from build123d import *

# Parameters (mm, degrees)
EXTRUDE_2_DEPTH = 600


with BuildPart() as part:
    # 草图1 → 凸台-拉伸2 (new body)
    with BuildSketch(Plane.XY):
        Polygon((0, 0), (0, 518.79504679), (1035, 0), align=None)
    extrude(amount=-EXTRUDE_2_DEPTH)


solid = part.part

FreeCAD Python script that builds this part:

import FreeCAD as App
import Part
import Sketcher


def add_polygon(sketch, points):
    """Adds a closed chain of lines whose ends are joined by coincident constraints."""
    first, n = sketch.GeometryCount, len(points)
    for a, b in zip(points, points[1:] + points[:1]):
        sketch.addGeometry(Part.LineSegment(App.Vector(*a, 0), App.Vector(*b, 0)), False)
    for i in range(n):
        sketch.addConstraint(Sketcher.Constraint("Coincident", first + i, 2, first + (i + 1) % n, 1))

doc = App.newDocument("Part")
params = doc.addObject("Spreadsheet::Sheet", "Params")
for row, (alias, value) in enumerate([
    ("sketch1_width", "1035 mm"),
    ("pad1_length", "600 mm"),
], start=1):
    params.set(f"A{row}", alias)
    params.set(f"B{row}", "=" + value)
    params.setAlias(f"B{row}", alias)

body = doc.addObject("PartDesign::Body", "Body")

sketch1 = body.newObject("Sketcher::SketchObject", "Sketch")
sketch1.AttachmentSupport = (doc.getObject("XY_Plane"), [""])
sketch1.MapMode = "FlatFace"
add_polygon(sketch1, [(0, 518.795047), (0, 0), (1035, 0)])
sketch1.addConstraint([
    Sketcher.Constraint("Vertical", 0),
    Sketcher.Constraint("Horizontal", 1),
    Sketcher.Constraint("Coincident", 0, 2, -1, 1),
    Sketcher.Constraint("DistanceX", 1, 1, 1, 2, 1035.0),
    Sketcher.Constraint("Distance", 2, 1157.74492),
])
sketch1.setExpression("Constraints[6]", "Params.sketch1_width")
pad1 = body.newObject("PartDesign::Pad", "Pad")
pad1.Profile = sketch1
pad1.setExpression("Length", "Params.pad1_length")
pad1.Reversed = True

doc.recompute()
